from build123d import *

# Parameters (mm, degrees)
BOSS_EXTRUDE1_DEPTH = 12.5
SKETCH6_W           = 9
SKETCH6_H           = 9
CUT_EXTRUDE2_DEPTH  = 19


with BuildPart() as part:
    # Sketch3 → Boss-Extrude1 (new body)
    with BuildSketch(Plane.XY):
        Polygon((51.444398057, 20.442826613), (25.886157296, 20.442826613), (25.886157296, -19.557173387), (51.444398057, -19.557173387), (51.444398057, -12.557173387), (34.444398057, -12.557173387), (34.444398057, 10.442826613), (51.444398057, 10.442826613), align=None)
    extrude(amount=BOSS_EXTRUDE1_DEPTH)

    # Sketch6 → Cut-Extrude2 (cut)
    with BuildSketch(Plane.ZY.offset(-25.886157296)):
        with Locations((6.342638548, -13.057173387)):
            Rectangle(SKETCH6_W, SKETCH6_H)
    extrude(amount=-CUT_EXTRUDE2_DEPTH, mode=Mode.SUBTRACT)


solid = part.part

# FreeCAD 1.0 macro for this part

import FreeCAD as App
import Part
import Sketcher
from FreeCAD import Vector


def add_polygon(sketch, points):
    """Adds a closed chain of lines whose ends are joined by coincident constraints."""
    first, n = sketch.GeometryCount, len(points)
    for a, b in zip(points, points[1:] + points[:1]):
        sketch.addGeometry(Part.LineSegment(App.Vector(*a, 0), App.Vector(*b, 0)), False)
    for i in range(n):
        sketch.addConstraint(Sketcher.Constraint("Coincident", first + i, 2, first + (i + 1) % n, 1))

doc = App.newDocument("Part")
body = doc.addObject("PartDesign::Body", "Body")

# Sketch on XY plane
sketch1 = doc.addObject("Sketcher::SketchObject", "Sketch")
body.addObject(sketch1)
sketch1.AttachmentSupport = (doc.XY_Plane, [""])
sketch1.MapMode = "FlatFace"
add_polygon(sketch1, [(51.444398, 20.442827), (25.886157, 20.442827), (25.886157, -19.557173), (51.444398, -19.557173), (51.444398, -12.557173), (34.444398, -12.557173), (34.444398, 10.442827), (51.444398, 10.442827)])  # lines 0-7
sketch1.addConstraint(Sketcher.Constraint("Horizontal", 0))
sketch1.addConstraint(Sketcher.Constraint("Vertical", 1))
sketch1.addConstraint(Sketcher.Constraint("Horizontal", 2))
sketch1.addConstraint(Sketcher.Constraint("Vertical", 3))
sketch1.addConstraint(Sketcher.Constraint("Horizontal", 4))
sketch1.addConstraint(Sketcher.Constraint("Vertical", 5))
sketch1.addConstraint(Sketcher.Constraint("Horizontal", 6))
sketch1.addConstraint(Sketcher.Constraint("Vertical", 7))
sketch1.addConstraint(Sketcher.Constraint("Vertical", 3, 2, 6, 2))
sketch1.addConstraint(Sketcher.Constraint("DistanceX", 4, 2, 4, 1, 17.0))
sketch1.addConstraint(Sketcher.Constraint("DistanceY", 1, 2, 1, 1, 40.0))
sketch1.addConstraint(Sketcher.Constraint("DistanceY", 3, 1, 3, 2, 7.0))
sketch1.addConstraint(Sketcher.Constraint("DistanceY", 5, 1, 5, 2, 23.0))
sketch1.addConstraint(Sketcher.Constraint("DistanceX", 0, 2, 0, 1, 25.558241))
sketch1.addConstraint(Sketcher.Constraint("DistanceX", -1, 1, 2, 2, 51.444398))
sketch1.addConstraint(Sketcher.Constraint("DistanceY", -1, 1, 0, 2, 20.442827))
pad1 = doc.addObject("PartDesign::Pad", "Pad")
body.addObject(pad1)
pad1.Profile = sketch1
pad1.Length = 12.5

# Sketch on YZ plane
sketch2 = doc.addObject("Sketcher::SketchObject", "Sketch001")
body.addObject(sketch2)
sketch2.AttachmentSupport = (doc.YZ_Plane, [""])
sketch2.MapMode = "FlatFace"
sketch2.AttachmentOffset = App.Placement(Vector(0, 0, 25.886157), App.Rotation())
add_polygon(sketch2, [(-8.557173, 1.842639), (-17.557173, 1.842639), (-17.557173, 10.842639), (-8.557173, 10.842639)])  # lines 0-3
sketch2.addConstraint(Sketcher.Constraint("Horizontal", 0))
sketch2.addConstraint(Sketcher.Constraint("Vertical", 1))
sketch2.addConstraint(Sketcher.Constraint("Horizontal", 2))
sketch2.addConstraint(Sketcher.Constraint("Vertical", 3))
sketch2.addConstraint(Sketcher.Constraint("Equal", 2, 1))
sketch2.addConstraint(Sketcher.Constraint("DistanceX", 0, 2, 0, 1, 9.0))
sketch2.addConstraint(Sketcher.Constraint("DistanceY", -1, 1, 0, 2, 1.842639))
sketch2.addConstraint(Sketcher.Constraint("DistanceX", 0, 2, -1, 1, 17.557173))
pocket1 = doc.addObject("PartDesign::Pocket", "Pocket")
body.addObject(pocket1)
pocket1.Profile = sketch2
pocket1.Length = 19
pocket1.Reversed = True

doc.recompute()
